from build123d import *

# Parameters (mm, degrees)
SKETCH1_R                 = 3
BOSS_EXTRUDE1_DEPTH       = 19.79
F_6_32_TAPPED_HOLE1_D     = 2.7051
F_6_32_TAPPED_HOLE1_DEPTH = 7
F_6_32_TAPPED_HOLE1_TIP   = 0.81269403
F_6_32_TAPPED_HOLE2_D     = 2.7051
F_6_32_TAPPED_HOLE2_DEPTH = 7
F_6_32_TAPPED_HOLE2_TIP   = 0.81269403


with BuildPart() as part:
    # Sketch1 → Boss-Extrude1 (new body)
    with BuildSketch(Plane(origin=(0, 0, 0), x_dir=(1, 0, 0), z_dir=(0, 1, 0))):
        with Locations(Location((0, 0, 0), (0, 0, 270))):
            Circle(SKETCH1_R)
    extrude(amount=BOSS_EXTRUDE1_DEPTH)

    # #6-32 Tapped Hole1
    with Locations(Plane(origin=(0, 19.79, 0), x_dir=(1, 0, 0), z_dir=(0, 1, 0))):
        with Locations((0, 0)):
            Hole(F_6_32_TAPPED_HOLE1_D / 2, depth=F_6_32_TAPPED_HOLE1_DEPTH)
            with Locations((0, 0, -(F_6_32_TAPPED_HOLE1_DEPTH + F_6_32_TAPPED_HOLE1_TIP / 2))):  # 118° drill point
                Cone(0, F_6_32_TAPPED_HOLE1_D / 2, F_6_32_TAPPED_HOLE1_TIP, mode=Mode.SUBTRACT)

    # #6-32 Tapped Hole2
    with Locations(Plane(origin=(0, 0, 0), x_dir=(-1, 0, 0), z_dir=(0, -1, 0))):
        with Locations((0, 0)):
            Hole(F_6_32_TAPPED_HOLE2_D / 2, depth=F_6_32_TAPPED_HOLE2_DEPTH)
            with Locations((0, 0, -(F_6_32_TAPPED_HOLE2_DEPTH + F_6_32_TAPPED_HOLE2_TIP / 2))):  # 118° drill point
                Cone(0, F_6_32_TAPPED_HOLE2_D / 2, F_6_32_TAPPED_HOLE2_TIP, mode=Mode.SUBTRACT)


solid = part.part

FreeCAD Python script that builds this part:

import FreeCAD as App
import Part
import Sketcher
Q = App.Units.Quantity

doc = App.newDocument("Part")
params = doc.addObject("Spreadsheet::Sheet", "Params")
for row, (alias, value) in enumerate([
    ("sketch1_diameter", "6 mm"),
    ("pad1_length", "19.79 mm"),
    ("hole_diameter", "2.7051 mm"),
    ("hole_depth", "7 mm"),
    ("hole2_diameter", "2.7051 mm"),
    ("hole2_depth", "7 mm"),
], start=1):
    params.set(f"A{row}", alias)
    params.set(f"B{row}", "=" + value)
    params.setAlias(f"B{row}", alias)

body = doc.addObject("PartDesign::Body", "Body")

# Sketch on XZ plane
sketch1 = body.newObject("Sketcher::SketchObject", "Sketch")
sketch1.AttachmentSupport = (doc.getObject("XZ_Plane"), [""])
sketch1.MapMode = "FlatFace"
sketch1.addGeometry(Part.Circle(App.Vector(0, 0, 0), App.Vector(0, 0, 1), 3), False)
sketch1.addConstraint([
    Sketcher.Constraint("Coincident", 0, 3, -1, 1),
    Sketcher.Constraint("Diameter", 0, Q("6 mm")),
])
sketch1.setExpression("Constraints[1]", "Params.sketch1_diameter")
pad1 = body.newObject("PartDesign::Pad", "Pad")
pad1.Profile = sketch1
pad1.setExpression("Length", "Params.pad1_length")
pad1.Reversed = True

# Sketch on XZ plane
sketch2 = body.newObject("Sketcher::SketchObject", "Sketch001")
sketch2.AttachmentSupport = (doc.getObject("XZ_Plane"), [""])
sketch2.MapMode = "FlatFace"
sketch2.AttachmentOffset = App.Placement(App.Vector(0, 0, -19.79), App.Rotation())
sketch2.addGeometry(Part.Circle(App.Vector(0, 0, 0), App.Vector(0, 0, 1), 1.4), False)
sketch2.addConstraint([
    Sketcher.Constraint("Coincident", 0, 3, -1, 1),
    Sketcher.Constraint("Diameter", 0, Q("2.7051 mm")),
])
doc.recompute()
hole = body.newObject("PartDesign::Hole", "Hole")
hole.Profile = sketch2
hole.ThreadType = "None"
hole.setExpression("Diameter", "Params.hole_diameter")
hole.DepthType = "Dimension"
hole.setExpression("Depth", "Params.hole_depth")
hole.DrillPoint = "Angled"
hole.DrillPointAngle = 118
hole.Reversed = True

# Sketch on XZ plane
sketch3 = body.newObject("Sketcher::SketchObject", "Sketch002")
sketch3.AttachmentSupport = (doc.getObject("XZ_Plane"), [""])
sketch3.MapMode = "FlatFace"
sketch3.addGeometry(Part.Circle(App.Vector(0, 0, 0), App.Vector(0, 0, 1), 1.4), False)
sketch3.addConstraint([
    Sketcher.Constraint("Coincident", 0, 3, -1, 1),
    Sketcher.Constraint("Diameter", 0, Q("2.7051 mm")),
])
doc.recompute()
hole2 = body.newObject("PartDesign::Hole", "Hole001")
hole2.Profile = sketch3
hole2.ThreadType = "None"
hole2.setExpression("Diameter", "Params.hole2_diameter")
hole2.DepthType = "Dimension"
hole2.setExpression("Depth", "Params.hole2_depth")
hole2.DrillPoint = "Angled"
hole2.DrillPointAngle = 118

doc.recompute()
